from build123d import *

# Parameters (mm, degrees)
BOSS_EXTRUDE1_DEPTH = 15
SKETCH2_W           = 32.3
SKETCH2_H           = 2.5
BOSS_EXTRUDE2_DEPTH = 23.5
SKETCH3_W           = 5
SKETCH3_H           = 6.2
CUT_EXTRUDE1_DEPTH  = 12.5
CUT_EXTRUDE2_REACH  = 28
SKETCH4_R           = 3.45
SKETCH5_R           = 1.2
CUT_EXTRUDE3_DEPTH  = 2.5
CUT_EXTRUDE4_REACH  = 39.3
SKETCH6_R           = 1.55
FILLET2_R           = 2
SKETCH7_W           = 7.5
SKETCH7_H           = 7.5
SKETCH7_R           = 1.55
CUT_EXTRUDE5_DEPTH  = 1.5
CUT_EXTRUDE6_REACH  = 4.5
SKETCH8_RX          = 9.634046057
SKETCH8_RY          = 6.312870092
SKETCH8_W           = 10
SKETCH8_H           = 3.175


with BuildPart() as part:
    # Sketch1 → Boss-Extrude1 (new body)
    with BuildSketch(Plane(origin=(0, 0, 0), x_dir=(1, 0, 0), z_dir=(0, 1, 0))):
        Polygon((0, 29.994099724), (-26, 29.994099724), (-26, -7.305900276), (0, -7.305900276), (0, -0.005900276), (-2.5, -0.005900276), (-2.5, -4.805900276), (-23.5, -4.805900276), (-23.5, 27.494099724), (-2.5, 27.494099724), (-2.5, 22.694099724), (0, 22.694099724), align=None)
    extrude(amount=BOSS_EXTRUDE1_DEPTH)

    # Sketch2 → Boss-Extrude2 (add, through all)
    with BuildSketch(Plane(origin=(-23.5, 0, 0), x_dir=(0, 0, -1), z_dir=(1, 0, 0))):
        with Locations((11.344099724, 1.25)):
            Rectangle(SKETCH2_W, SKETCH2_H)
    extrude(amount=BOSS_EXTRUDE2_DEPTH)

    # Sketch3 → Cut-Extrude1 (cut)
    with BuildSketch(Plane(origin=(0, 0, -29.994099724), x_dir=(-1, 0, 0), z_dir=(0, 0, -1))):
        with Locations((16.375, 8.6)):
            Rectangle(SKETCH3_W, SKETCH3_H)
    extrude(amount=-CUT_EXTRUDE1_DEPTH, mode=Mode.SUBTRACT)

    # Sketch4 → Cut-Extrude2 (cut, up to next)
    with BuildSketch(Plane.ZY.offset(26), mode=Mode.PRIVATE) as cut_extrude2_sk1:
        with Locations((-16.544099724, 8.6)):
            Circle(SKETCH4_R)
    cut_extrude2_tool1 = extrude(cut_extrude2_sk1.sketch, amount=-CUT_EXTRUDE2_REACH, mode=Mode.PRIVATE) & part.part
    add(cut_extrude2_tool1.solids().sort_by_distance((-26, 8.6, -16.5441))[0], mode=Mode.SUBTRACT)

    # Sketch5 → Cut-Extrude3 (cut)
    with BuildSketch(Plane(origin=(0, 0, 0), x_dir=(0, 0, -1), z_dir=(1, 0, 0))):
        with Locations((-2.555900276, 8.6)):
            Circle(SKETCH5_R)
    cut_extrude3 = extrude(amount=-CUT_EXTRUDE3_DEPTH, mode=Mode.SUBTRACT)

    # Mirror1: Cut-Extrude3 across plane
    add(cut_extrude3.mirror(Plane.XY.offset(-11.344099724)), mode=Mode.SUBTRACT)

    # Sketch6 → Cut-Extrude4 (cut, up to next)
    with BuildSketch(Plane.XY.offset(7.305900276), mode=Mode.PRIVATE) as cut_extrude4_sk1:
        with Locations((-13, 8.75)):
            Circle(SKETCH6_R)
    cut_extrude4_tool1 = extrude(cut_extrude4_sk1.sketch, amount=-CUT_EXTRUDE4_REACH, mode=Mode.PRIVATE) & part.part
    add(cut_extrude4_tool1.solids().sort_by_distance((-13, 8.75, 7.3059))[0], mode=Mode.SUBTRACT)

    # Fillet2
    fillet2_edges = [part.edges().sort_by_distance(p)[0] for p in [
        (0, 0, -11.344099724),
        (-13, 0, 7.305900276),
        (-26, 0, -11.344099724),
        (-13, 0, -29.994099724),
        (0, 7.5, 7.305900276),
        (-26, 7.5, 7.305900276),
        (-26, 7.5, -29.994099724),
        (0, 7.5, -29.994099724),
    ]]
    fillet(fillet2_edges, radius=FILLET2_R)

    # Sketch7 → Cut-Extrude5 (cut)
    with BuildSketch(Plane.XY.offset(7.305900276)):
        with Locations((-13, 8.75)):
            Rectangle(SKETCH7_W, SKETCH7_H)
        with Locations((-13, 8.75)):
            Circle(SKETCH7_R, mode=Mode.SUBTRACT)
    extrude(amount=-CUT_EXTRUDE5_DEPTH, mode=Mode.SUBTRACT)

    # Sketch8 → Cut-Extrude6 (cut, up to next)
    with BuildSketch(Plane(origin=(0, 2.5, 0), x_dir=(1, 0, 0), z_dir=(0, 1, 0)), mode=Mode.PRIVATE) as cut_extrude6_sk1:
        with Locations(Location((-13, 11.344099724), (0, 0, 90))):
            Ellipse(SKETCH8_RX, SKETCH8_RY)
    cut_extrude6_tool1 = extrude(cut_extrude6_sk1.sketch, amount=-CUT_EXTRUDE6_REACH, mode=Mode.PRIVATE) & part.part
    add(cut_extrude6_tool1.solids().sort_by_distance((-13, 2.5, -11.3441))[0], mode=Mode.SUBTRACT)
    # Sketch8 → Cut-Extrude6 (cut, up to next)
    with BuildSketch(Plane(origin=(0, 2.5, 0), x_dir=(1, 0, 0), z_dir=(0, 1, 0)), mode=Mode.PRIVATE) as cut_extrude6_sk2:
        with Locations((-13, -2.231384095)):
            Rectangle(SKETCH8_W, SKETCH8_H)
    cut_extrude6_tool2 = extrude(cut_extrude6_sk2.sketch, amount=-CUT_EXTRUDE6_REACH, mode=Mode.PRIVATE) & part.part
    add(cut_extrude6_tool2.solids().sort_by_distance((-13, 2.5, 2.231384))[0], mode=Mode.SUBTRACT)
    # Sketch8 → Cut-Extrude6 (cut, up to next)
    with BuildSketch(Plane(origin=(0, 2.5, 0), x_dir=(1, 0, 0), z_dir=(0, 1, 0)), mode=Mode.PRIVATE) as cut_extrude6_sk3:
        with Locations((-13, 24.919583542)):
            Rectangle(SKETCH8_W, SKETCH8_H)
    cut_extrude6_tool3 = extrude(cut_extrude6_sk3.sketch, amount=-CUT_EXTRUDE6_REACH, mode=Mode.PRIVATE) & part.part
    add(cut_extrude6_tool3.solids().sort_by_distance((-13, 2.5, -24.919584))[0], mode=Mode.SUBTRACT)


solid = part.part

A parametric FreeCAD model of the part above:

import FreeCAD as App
import Part
import Sketcher

V = App.Vector
Q = App.Units.Quantity


def edges_at(feature, points):
    """Names of the edges that pass closest to the given points."""
    edges = feature.Shape.Edges
    near = lambda p: min(range(len(edges)), key=lambda i: edges[i].distToShape(Part.Vertex(*p))[0])
    return sorted({f"Edge{near(p) + 1}" for p in points})


def add_polygon(sketch, points):
    """Adds a closed chain of lines whose ends are joined by coincident constraints."""
    first, n = sketch.GeometryCount, len(points)
    for a, b in zip(points, points[1:] + points[:1]):
        sketch.addGeometry(Part.LineSegment(App.Vector(*a, 0), App.Vector(*b, 0)), False)
    for i in range(n):
        sketch.addConstraint(Sketcher.Constraint("Coincident", first + i, 2, first + (i + 1) % n, 1))

doc = App.newDocument("Part")
body = doc.addObject("PartDesign::Body", "Body")

# Sketch on XZ plane
sketch1 = doc.addObject("Sketcher::SketchObject", "Sketch")
body.addObject(sketch1)
sketch1.AttachmentSupport = (doc.XZ_Plane, [""])
sketch1.MapMode = "FlatFace"
add_polygon(sketch1, [(0, -30), (-26, -30), (-26, 7.3), (0, 7.3), (0, 0), (-2.5, 0), (-2.5, 4.8), (-23.5, 4.8), (-23.5, -27.5), (-2.5, -27.5), (-2.5, -22.7), (0, -22.7)])  # lines 0-11
sketch1.addConstraint(Sketcher.Constraint("Horizontal", 0))
sketch1.addConstraint(Sketcher.Constraint("Vertical", 1))
sketch1.addConstraint(Sketcher.Constraint("Horizontal", 2))
sketch1.addConstraint(Sketcher.Constraint("Vertical", 3))
sketch1.addConstraint(Sketcher.Constraint("Horizontal", 4))
sketch1.addConstraint(Sketcher.Constraint("Vertical", 5))
sketch1.addConstraint(Sketcher.Constraint("Horizontal", 6))
sketch1.addConstraint(Sketcher.Constraint("Vertical", 7))
sketch1.addConstraint(Sketcher.Constraint("Horizontal", 8))
sketch1.addConstraint(Sketcher.Constraint("Vertical", 9))
sketch1.addConstraint(Sketcher.Constraint("Horizontal", 10))
sketch1.addConstraint(Sketcher.Constraint("Vertical", 11))
sketch1.addConstraint(Sketcher.Constraint("PointOnObject", 2, 2, -2))
sketch1.addConstraint(Sketcher.Constraint("PointOnObject", 10, 2, -2))
sketch1.addConstraint(Sketcher.Constraint("Vertical", 5, 2, 8, 2))
sketch1.addConstraint(Sketcher.Constraint("Equal", 5, 9))
sketch1.addConstraint(Sketcher.Constraint("Equal", 3, 11))
sketch1.addConstraint(Sketcher.Constraint("DistanceX", 0, 2, 0, 1, Q("26 mm")))
sketch1.addConstraint(Sketcher.Constraint("DistanceX", 6, 2, 6, 1, Q("21 mm")))
sketch1.addConstraint(Sketcher.Constraint("DistanceX", 4, 2, 4, 1, Q("2.5 mm")))
sketch1.addConstraint(Sketcher.Constraint("DistanceY", 1, 1, 1, 2, Q("37.3 mm")))
sketch1.addConstraint(Sketcher.Constraint("DistanceY", 3, 2, 3, 1, Q("7.3 mm")))
sketch1.addConstraint(Sketcher.Constraint("DistanceY", 5, 1, 5, 2, Q("4.8 mm")))
sketch1.addConstraint(Sketcher.Constraint("DistanceY", 0, 2, -1, 1, Q("29.9941 mm")))
pad1 = doc.addObject("PartDesign::Pad", "Pad")
body.addObject(pad1)
pad1.Profile = sketch1
pad1.Length = 15
pad1.Reversed = True

# Sketch on YZ plane
sketch2 = doc.addObject("Sketcher::SketchObject", "Sketch001")
body.addObject(sketch2)
sketch2.AttachmentSupport = (doc.YZ_Plane, [""])
sketch2.MapMode = "FlatFace"
sketch2.AttachmentOffset = App.Placement(V(0, 0, -23.5), App.Rotation())
add_polygon(sketch2, [(2.5, 4.8), (0, 4.8), (0, -27.5), (2.5, -27.5)])  # lines 0-3
sketch2.addConstraint(Sketcher.Constraint("Horizontal", 0))
sketch2.addConstraint(Sketcher.Constraint("Vertical", 1))
sketch2.addConstraint(Sketcher.Constraint("Horizontal", 2))
sketch2.addConstraint(Sketcher.Constraint("Vertical", 3))
sketch2.addConstraint(Sketcher.Constraint("PointOnObject", 0, 2, -2))
sketch2.addConstraint(Sketcher.Constraint("DistanceX", 0, 2, 0, 1, Q("2.5 mm")))
sketch2.addConstraint(Sketcher.Constraint("DistanceY", 1, 2, 1, 1, Q("32.3 mm")))
sketch2.addConstraint(Sketcher.Constraint("DistanceY", -1, 1, 0, 2, Q("4.8059 mm")))
pad2 = doc.addObject("PartDesign::Pad", "Pad001")
body.addObject(pad2)
pad2.Profile = sketch2
pad2.Length = 23.5

# Sketch on XY plane
sketch3 = doc.addObject("Sketcher::SketchObject", "Sketch002")
body.addObject(sketch3)
sketch3.AttachmentSupport = (doc.XY_Plane, [""])
sketch3.MapMode = "FlatFace"
sketch3.AttachmentOffset = App.Placement(V(0, 0, -29.9941), App.Rotation())
add_polygon(sketch3, [(-14, 12), (-14, 6), (-19, 6), (-19, 12)])  # lines 0-3
sketch3.addConstraint(Sketcher.Constraint("Vertical", 0))
sketch3.addConstraint(Sketcher.Constraint("Horizontal", 1))
sketch3.addConstraint(Sketcher.Constraint("Vertical", 2))
sketch3.addConstraint(Sketcher.Constraint("Horizontal", 3))
sketch3.addConstraint(Sketcher.Constraint("DistanceX", 1, 2, 1, 1, Q("5 mm")))
sketch3.addConstraint(Sketcher.Constraint("DistanceY", 0, 2, 0, 1, Q("6.2 mm")))
sketch3.addConstraint(Sketcher.Constraint("DistanceY", -1, 1, 0, 2, Q("5.5 mm")))
sketch3.addConstraint(Sketcher.Constraint("DistanceX", 0, 2, -1, 1, Q("13.875 mm")))
pocket1 = doc.addObject("PartDesign::Pocket", "Pocket")
body.addObject(pocket1)
pocket1.Profile = sketch3
pocket1.Length = 12.5
pocket1.Reversed = True

# Sketch on YZ plane
sketch4 = doc.addObject("Sketcher::SketchObject", "Sketch003")
body.addObject(sketch4)
sketch4.AttachmentSupport = (doc.YZ_Plane, [""])
sketch4.MapMode = "FlatFace"
sketch4.AttachmentOffset = App.Placement(V(0, 0, -26), App.Rotation())
sketch4.addGeometry(Part.Circle(V(8.6, -16.5, 0), V(0, 0, 1), 3.5), False)
sketch4.addConstraint(Sketcher.Constraint("Diameter", 0, Q("6.9 mm")))
sketch4.addConstraint(Sketcher.Constraint("DistanceX", -1, 1, 0, 3, Q("8.6 mm")))
sketch4.addConstraint(Sketcher.Constraint("DistanceY", 0, 3, -1, 1, Q("16.5441 mm")))
pocket2 = doc.addObject("PartDesign::Pocket", "Pocket001")
body.addObject(pocket2)
pocket2.Profile = sketch4
pocket2.Type = "UpToFirst"
pocket2.Reversed = True

# Sketch on YZ plane
sketch5 = doc.addObject("Sketcher::SketchObject", "Sketch004")
body.addObject(sketch5)
sketch5.AttachmentSupport = (doc.YZ_Plane, [""])
sketch5.MapMode = "FlatFace"
sketch5.addGeometry(Part.Circle(V(8.6, 2.6, 0), V(0, 0, 1), 1.2), False)
sketch5.addConstraint(Sketcher.Constraint("Diameter", 0, Q("2.4 mm")))
sketch5.addConstraint(Sketcher.Constraint("DistanceX", -1, 1, 0, 3, Q("8.6 mm")))
sketch5.addConstraint(Sketcher.Constraint("DistanceY", -1, 1, 0, 3, Q("2.5559 mm")))
pocket3 = doc.addObject("PartDesign::Pocket", "Pocket002")
body.addObject(pocket3)
pocket3.Profile = sketch5
pocket3.Length = 2.5
doc.recompute()

datumplane = doc.addObject("PartDesign::Plane", "DatumPlane")
body.addObject(datumplane)
datumplane.AttachmentSupport = (doc.XY_Plane, [""])
datumplane.MapMode = "FlatFace"
datumplane.AttachmentOffset = App.Placement(V(0, 0, -11.3441), App.Rotation())
mirrored = doc.addObject("PartDesign::Mirrored", "Mirrored")
body.addObject(mirrored)
mirrored.Originals = [pocket3]
mirrored.MirrorPlane = (datumplane, [""])
body.Tip = mirrored

# Sketch on XY plane
sketch6 = doc.addObject("Sketcher::SketchObject", "Sketch005")
body.addObject(sketch6)
sketch6.AttachmentSupport = (doc.XY_Plane, [""])
sketch6.MapMode = "FlatFace"
sketch6.AttachmentOffset = App.Placement(V(0, 0, 7.3059), App.Rotation())
sketch6.addGeometry(Part.Circle(V(-13, 8.8, 0), V(0, 0, 1), 1.6), False)
sketch6.addConstraint(Sketcher.Constraint("Diameter", 0, Q("3.1 mm")))
sketch6.addConstraint(Sketcher.Constraint("DistanceX", 0, 3, -1, 1, Q("13 mm")))
sketch6.addConstraint(Sketcher.Constraint("DistanceY", -1, 1, 0, 3, Q("8.75 mm")))
pocket4 = doc.addObject("PartDesign::Pocket", "Pocket003")
body.addObject(pocket4)
pocket4.Profile = sketch6
pocket4.Type = "UpToFirst"
doc.recompute()

fillet = doc.addObject("PartDesign::Fillet", "Fillet")
body.addObject(fillet)
fillet.Base = (pocket4, edges_at(pocket4, [
    (0, 0, -11.344),
    (-13, 0, 7.306),
    (-26, 0, -11.344),
    (-13, 0, -29.994),
    (0, 7.5, 7.306),
    (-26, 7.5, 7.306),
    (-26, 7.5, -29.994),
    (0, 7.5, -29.994),
]))
fillet.Radius = 2

# Sketch on XY plane
sketch7 = doc.addObject("Sketcher::SketchObject", "Sketch006")
body.addObject(sketch7)
sketch7.AttachmentSupport = (doc.XY_Plane, [""])
sketch7.MapMode = "FlatFace"
sketch7.AttachmentOffset = App.Placement(V(0, 0, 7.3059), App.Rotation())
add_polygon(sketch7, [(-16.8, 12.5), (-16.8, 5), (-9.2, 5), (-9.2, 12.5)])  # lines 0-3
sketch7.addGeometry(Part.Circle(V(-13, 8.8, 0), V(0, 0, 1), 1.6), False)  # 4
sketch7.addConstraint(Sketcher.Constraint("Vertical", 0))
sketch7.addConstraint(Sketcher.Constraint("Horizontal", 1))
sketch7.addConstraint(Sketcher.Constraint("Vertical", 2))
sketch7.addConstraint(Sketcher.Constraint("Horizontal", 3))
sketch7.addConstraint(Sketcher.Constraint("Equal", 3, 0))
sketch7.addConstraint(Sketcher.Constraint("Diameter", 4, Q("3.1 mm")))
sketch7.addConstraint(Sketcher.Constraint("DistanceX", 1, 1, 1, 2, Q("7.5 mm")))
sketch7.addConstraint(Sketcher.Constraint("DistanceX", 4, 3, -1, 1, Q("13 mm")))
sketch7.addConstraint(Sketcher.Constraint("DistanceY", -1, 1, 0, 2, Q("5 mm")))
sketch7.addConstraint(Sketcher.Constraint("DistanceY", -1, 1, 4, 3, Q("8.75 mm")))
sketch7.addConstraint(Sketcher.Constraint("DistanceX", 0, 2, -1, 1, Q("16.75 mm")))
pocket5 = doc.addObject("PartDesign::Pocket", "Pocket004")
body.addObject(pocket5)
pocket5.Profile = sketch7
pocket5.Length = 1.5

# Sketch on XZ plane
sketch8 = doc.addObject("Sketcher::SketchObject", "Sketch007")
body.addObject(sketch8)
sketch8.AttachmentSupport = (doc.XZ_Plane, [""])
sketch8.MapMode = "FlatFace"
sketch8.AttachmentOffset = App.Placement(V(0, 0, -2.5), App.Rotation())
sketch8.addGeometry(Part.Ellipse(V(-13, -20.978146, 0), V(-6.68713, -11.3441, 0), V(-13, -11.3441, 0)), False)
sketch8.addConstraint(Sketcher.Constraint("Block", 0))
pocket6 = doc.addObject("PartDesign::Pocket", "Pocket005")
body.addObject(pocket6)
pocket6.Profile = sketch8
pocket6.Type = "UpToFirst"
pocket6.Reversed = True

# Sketch on XZ plane
sketch9 = doc.addObject("Sketcher::SketchObject", "Sketch008")
body.addObject(sketch9)
sketch9.AttachmentSupport = (doc.XZ_Plane, [""])
sketch9.MapMode = "FlatFace"
sketch9.AttachmentOffset = App.Placement(V(0, 0, -2.5), App.Rotation())
add_polygon(sketch9, [(-18, 0.6), (-18, 3.8), (-8, 3.8), (-8, 0.6)])  # lines 0-3
sketch9.addConstraint(Sketcher.Constraint("Vertical", 0))
sketch9.addConstraint(Sketcher.Constraint("Horizontal", 1))
sketch9.addConstraint(Sketcher.Constraint("Vertical", 2))
sketch9.addConstraint(Sketcher.Constraint("Horizontal", 3))
sketch9.addConstraint(Sketcher.Constraint("DistanceX", 1, 1, 1, 2, Q("10 mm")))
sketch9.addConstraint(Sketcher.Constraint("DistanceX", 0, 2, -1, 1, Q("18 mm")))
sketch9.addConstraint(Sketcher.Constraint("DistanceY", 0, 1, 0, 2, Q("3.175 mm")))
sketch9.addConstraint(Sketcher.Constraint("DistanceY", -1, 1, 0, 2, Q("3.818884 mm")))
pocket7 = doc.addObject("PartDesign::Pocket", "Pocket006")
body.addObject(pocket7)
pocket7.Profile = sketch9
pocket7.Type = "UpToFirst"
pocket7.Reversed = True

# Sketch on XZ plane
sketch10 = doc.addObject("Sketcher::SketchObject", "Sketch009")
body.addObject(sketch10)
sketch10.AttachmentSupport = (doc.XZ_Plane, [""])
sketch10.MapMode = "FlatFace"
sketch10.AttachmentOffset = App.Placement(V(0, 0, -2.5), App.Rotation())
add_polygon(sketch10, [(-18, -26.5), (-18, -23.3), (-8, -23.3), (-8, -26.5)])  # lines 0-3
sketch10.addConstraint(Sketcher.Constraint("Vertical", 0))
sketch10.addConstraint(Sketcher.Constraint("Horizontal", 1))
sketch10.addConstraint(Sketcher.Constraint("Vertical", 2))
sketch10.addConstraint(Sketcher.Constraint("Horizontal", 3))
sketch10.addConstraint(Sketcher.Constraint("DistanceX", 1, 1, 1, 2, Q("10 mm")))
sketch10.addConstraint(Sketcher.Constraint("DistanceX", 0, 2, -1, 1, Q("18 mm")))
sketch10.addConstraint(Sketcher.Constraint("DistanceY", 0, 1, 0, 2, Q("3.175 mm")))
sketch10.addConstraint(Sketcher.Constraint("DistanceY", 0, 2, -1, 1, Q("23.332084 mm")))
pocket8 = doc.addObject("PartDesign::Pocket", "Pocket007")
body.addObject(pocket8)
pocket8.Profile = sketch10
pocket8.Type = "UpToFirst"
pocket8.Reversed = True

doc.recompute()
